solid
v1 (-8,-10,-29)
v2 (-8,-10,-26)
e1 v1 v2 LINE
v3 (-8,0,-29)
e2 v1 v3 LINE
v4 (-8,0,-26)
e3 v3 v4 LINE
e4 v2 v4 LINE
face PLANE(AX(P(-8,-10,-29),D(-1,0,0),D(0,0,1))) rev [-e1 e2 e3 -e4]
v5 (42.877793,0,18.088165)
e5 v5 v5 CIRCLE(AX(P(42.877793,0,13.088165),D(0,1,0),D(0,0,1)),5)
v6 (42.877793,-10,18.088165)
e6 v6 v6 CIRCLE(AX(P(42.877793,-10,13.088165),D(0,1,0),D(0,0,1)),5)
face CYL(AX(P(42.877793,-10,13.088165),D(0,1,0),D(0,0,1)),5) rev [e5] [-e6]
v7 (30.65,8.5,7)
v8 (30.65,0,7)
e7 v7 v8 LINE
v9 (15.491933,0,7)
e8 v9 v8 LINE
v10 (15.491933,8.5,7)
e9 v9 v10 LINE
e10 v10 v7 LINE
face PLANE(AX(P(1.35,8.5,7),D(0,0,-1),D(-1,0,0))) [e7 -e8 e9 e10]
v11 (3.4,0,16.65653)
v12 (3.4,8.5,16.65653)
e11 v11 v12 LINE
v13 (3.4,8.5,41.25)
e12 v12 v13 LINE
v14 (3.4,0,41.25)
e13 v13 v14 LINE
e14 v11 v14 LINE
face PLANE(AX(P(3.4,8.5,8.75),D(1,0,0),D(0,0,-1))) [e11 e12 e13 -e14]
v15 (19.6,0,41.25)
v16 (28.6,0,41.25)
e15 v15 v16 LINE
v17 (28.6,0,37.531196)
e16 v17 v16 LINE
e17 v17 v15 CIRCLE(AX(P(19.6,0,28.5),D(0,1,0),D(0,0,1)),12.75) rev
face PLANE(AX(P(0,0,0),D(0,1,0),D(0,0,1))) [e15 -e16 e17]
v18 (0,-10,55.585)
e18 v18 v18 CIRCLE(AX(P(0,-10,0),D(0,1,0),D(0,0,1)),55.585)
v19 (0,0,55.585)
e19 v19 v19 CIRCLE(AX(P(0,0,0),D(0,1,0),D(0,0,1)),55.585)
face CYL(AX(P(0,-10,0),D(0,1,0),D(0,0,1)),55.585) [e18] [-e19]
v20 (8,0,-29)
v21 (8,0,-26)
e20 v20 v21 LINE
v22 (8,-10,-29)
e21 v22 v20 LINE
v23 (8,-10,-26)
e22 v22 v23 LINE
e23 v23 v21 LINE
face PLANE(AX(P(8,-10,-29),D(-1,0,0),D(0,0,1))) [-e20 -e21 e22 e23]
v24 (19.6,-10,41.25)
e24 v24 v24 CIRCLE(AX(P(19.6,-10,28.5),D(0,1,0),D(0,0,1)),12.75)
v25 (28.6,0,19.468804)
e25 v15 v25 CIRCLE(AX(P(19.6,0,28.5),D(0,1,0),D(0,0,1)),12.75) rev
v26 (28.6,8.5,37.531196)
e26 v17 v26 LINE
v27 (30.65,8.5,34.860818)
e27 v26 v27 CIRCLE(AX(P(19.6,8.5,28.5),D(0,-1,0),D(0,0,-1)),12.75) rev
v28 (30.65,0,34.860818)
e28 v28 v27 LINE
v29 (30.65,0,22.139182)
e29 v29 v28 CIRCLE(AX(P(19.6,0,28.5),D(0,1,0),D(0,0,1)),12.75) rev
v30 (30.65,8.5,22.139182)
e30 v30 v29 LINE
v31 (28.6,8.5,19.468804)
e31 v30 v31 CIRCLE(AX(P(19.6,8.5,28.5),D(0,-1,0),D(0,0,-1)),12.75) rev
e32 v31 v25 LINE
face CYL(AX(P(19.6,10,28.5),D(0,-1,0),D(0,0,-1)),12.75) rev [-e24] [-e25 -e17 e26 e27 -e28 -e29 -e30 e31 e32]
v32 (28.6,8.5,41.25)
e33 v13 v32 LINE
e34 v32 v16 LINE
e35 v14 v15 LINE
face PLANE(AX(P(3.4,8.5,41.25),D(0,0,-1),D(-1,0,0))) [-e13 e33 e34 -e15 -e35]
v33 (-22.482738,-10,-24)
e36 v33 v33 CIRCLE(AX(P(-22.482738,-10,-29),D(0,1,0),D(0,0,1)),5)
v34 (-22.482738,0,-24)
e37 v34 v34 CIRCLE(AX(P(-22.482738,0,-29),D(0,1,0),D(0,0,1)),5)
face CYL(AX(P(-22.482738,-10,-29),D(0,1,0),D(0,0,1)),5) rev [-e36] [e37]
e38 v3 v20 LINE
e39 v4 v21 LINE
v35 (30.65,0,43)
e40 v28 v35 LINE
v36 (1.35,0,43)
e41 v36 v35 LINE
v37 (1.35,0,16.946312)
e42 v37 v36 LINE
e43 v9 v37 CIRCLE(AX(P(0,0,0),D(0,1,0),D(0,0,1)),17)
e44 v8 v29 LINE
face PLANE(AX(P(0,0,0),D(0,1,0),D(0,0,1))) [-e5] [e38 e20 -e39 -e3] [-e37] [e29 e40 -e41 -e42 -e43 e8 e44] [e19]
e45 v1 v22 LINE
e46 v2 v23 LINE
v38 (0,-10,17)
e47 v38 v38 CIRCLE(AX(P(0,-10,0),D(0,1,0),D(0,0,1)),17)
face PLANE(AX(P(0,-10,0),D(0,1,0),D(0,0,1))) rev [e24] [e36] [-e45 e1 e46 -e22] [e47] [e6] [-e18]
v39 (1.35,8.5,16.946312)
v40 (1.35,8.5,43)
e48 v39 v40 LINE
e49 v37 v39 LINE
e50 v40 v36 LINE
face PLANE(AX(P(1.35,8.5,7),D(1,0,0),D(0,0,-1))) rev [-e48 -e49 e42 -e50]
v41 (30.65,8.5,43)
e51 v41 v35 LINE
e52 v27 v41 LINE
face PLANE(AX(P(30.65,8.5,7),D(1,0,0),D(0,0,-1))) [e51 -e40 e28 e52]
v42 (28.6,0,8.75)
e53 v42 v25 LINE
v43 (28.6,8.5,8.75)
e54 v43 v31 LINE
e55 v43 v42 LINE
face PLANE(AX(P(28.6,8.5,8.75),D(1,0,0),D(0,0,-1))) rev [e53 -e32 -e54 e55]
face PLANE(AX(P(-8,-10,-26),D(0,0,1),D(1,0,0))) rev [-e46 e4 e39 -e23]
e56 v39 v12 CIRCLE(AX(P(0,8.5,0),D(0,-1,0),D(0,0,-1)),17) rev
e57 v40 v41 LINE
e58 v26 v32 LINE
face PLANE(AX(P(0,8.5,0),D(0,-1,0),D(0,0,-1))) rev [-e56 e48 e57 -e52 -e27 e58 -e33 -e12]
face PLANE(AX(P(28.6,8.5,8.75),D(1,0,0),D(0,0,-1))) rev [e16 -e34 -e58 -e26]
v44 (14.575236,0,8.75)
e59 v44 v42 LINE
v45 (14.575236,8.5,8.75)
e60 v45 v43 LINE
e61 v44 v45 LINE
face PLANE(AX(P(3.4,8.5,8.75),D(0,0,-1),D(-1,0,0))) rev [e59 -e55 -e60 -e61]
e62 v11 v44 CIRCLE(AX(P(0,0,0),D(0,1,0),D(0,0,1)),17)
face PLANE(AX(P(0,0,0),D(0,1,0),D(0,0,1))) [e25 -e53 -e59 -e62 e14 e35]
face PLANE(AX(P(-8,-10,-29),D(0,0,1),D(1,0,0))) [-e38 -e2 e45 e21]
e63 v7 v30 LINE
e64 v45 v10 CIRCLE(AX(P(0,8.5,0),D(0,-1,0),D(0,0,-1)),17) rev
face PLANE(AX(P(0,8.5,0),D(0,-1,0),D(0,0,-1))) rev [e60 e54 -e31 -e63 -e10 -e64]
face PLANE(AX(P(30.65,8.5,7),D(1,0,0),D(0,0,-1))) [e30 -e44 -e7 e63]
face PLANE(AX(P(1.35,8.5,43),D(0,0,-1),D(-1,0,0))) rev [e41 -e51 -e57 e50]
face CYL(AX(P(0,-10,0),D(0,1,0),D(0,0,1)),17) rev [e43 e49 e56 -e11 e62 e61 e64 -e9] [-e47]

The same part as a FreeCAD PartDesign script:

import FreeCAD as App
import Part
import Sketcher
from FreeCAD import Vector
Q = App.Units.Quantity

doc = App.newDocument("Part")
body = doc.addObject("PartDesign::Body", "Body")

sketch1 = doc.addObject("Sketcher::SketchObject", "Sketch")
body.addObject(sketch1)
sketch1.AttachmentSupport = (doc.XZ_Plane, [""])
sketch1.MapMode = "FlatFace"
sketch1.addGeometry([
    Part.Circle(Vector(0, 0, 0), Vector(0, 0, 1), 55.585),
    Part.Circle(Vector(0, 0, 0), Vector(0, 0, 1), 17),
], False)
sketch1.addConstraint([
    Sketcher.Constraint("Coincident", 0, 3, -1, 1),
    Sketcher.Constraint("Coincident", 1, 3, -1, 1),
    Sketcher.Constraint("Diameter", 1, Q("34 mm")),
    Sketcher.Constraint("Diameter", 0, Q("111.17 mm")),
])
pad1 = doc.addObject("PartDesign::Pad", "Pad")
body.addObject(pad1)
pad1.Profile = sketch1
pad1.Length = 10

sketch2 = doc.addObject("Sketcher::SketchObject", "Sketch001")
body.addObject(sketch2)
sketch2.AttachmentSupport = (doc.XZ_Plane, [""])
sketch2.MapMode = "FlatFace"
sketch2.addGeometry([
    Part.LineSegment(Vector(1.35, 7, 0), Vector(1.35, 43, 0)),
    Part.LineSegment(Vector(1.35, 43, 0), Vector(30.65, 43, 0)),
    Part.LineSegment(Vector(30.65, 43, 0), Vector(30.65, 7, 0)),
    Part.LineSegment(Vector(30.65, 7, 0), Vector(1.35, 7, 0)),
    Part.LineSegment(Vector(28.6, 41.25, 0), Vector(3.4, 41.25, 0)),
    Part.LineSegment(Vector(3.4, 41.25, 0), Vector(3.4, 8.75, 0)),
    Part.LineSegment(Vector(3.4, 8.75, 0), Vector(28.6, 8.75, 0)),
    Part.LineSegment(Vector(28.6, 8.75, 0), Vector(28.6, 41.25, 0)),
], False)
sketch2.addConstraint([
    Sketcher.Constraint("Coincident", 0, 2, 1, 1),
    Sketcher.Constraint("Coincident", 1, 2, 2, 1),
    Sketcher.Constraint("Coincident", 2, 2, 3, 1),
    Sketcher.Constraint("Coincident", 3, 2, 0, 1),
    Sketcher.Constraint("Coincident", 4, 2, 5, 1),
    Sketcher.Constraint("Coincident", 5, 2, 6, 1),
    Sketcher.Constraint("Coincident", 6, 2, 7, 1),
    Sketcher.Constraint("Coincident", 7, 2, 4, 1),
    Sketcher.Constraint("Vertical", 0),
    Sketcher.Constraint("Horizontal", 1),
    Sketcher.Constraint("Vertical", 2),
    Sketcher.Constraint("Horizontal", 3),
    Sketcher.Constraint("Horizontal", 4),
    Sketcher.Constraint("Vertical", 5),
    Sketcher.Constraint("Horizontal", 6),
    Sketcher.Constraint("Vertical", 7),
    Sketcher.Constraint("DistanceY", 0, 1, 0, 2, Q("36 mm")),
    Sketcher.Constraint("DistanceX", 1, 1, 1, 2, Q("29.3 mm")),
    Sketcher.Constraint("DistanceX", 4, 2, 4, 1, Q("25.2 mm")),
    Sketcher.Constraint("DistanceY", 5, 2, 5, 1, Q("32.5 mm")),
    Sketcher.Constraint("DistanceY", -1, 1, 0, 2, Q("43 mm")),
    Sketcher.Constraint("DistanceX", -1, 1, 4, 2, Q("3.4 mm")),
    Sketcher.Constraint("DistanceX", -1, 1, 0, 2, Q("1.35 mm")),
    Sketcher.Constraint("DistanceY", -1, 1, 4, 2, Q("41.25 mm")),
])
pad2 = doc.addObject("PartDesign::Pad", "Pad001")
body.addObject(pad2)
pad2.Profile = sketch2
pad2.Length = 8.5
pad2.Reversed = True

sketch3 = doc.addObject("Sketcher::SketchObject", "Sketch002")
body.addObject(sketch3)
sketch3.AttachmentSupport = (doc.XZ_Plane, [""])
sketch3.MapMode = "FlatFace"
sketch3.addGeometry(Part.Circle(Vector(19.6, 28.5, 0), Vector(0, 0, 1), 12.75), False)
sketch3.addConstraint([
    Sketcher.Constraint("Diameter", 0, Q("25.5 mm")),
    Sketcher.Constraint("DistanceX", -1, 1, 0, 3, Q("19.6 mm")),
    Sketcher.Constraint("DistanceY", -1, 1, 0, 3, Q("28.5 mm")),
])
pocket1 = doc.addObject("PartDesign::Pocket", "Pocket")
body.addObject(pocket1)
pocket1.Profile = sketch3
pocket1.Type = "ThroughAll"
pocket1.Midplane = True

sketch4 = doc.addObject("Sketcher::SketchObject", "Sketch003")
body.addObject(sketch4)
sketch4.AttachmentSupport = (doc.XZ_Plane, [""])
sketch4.MapMode = "FlatFace"
sketch4.AttachmentOffset = App.Placement(Vector(0, 0, -10), App.Rotation())
sketch4.addGeometry(Part.Circle(Vector(0, 0, 0), Vector(0, 0, 1), 17), False)
sketch4.addConstraint([
    Sketcher.Constraint("Coincident", 0, 3, -1, 1),
    Sketcher.Constraint("Diameter", 0, Q("34 mm")),
])
pocket2 = doc.addObject("PartDesign::Pocket", "Pocket001")
body.addObject(pocket2)
pocket2.Profile = sketch4
pocket2.Length = 10
pocket2.Reversed = True

sketch5 = doc.addObject("Sketcher::SketchObject", "Sketch004")
body.addObject(sketch5)
sketch5.AttachmentSupport = (doc.XZ_Plane, [""])
sketch5.MapMode = "FlatFace"
sketch5.addGeometry(Part.Circle(Vector(42.877793, 13.088165, 0), Vector(0, 0, 1), 5), False)
sketch5.addConstraint([
    Sketcher.Constraint("Diameter", 0, Q("10 mm")),
    Sketcher.Constraint("DistanceX", -1, 1, 0, 3, Q("42.877793 mm")),
    Sketcher.Constraint("DistanceY", -1, 1, 0, 3, Q("13.088165 mm")),
])
pocket3 = doc.addObject("PartDesign::Pocket", "Pocket002")
body.addObject(pocket3)
pocket3.Profile = sketch5
pocket3.Length = 10
pocket3.Reversed = True

sketch6 = doc.addObject("Sketcher::SketchObject", "Sketch005")
body.addObject(sketch6)
sketch6.AttachmentSupport = (doc.XZ_Plane, [""])
sketch6.MapMode = "FlatFace"
sketch6.addGeometry([
    Part.Circle(Vector(-22.482738, -29, 0), Vector(0, 0, 1), 5),
    Part.LineSegment(Vector(-8, -29, 0), Vector(-8, -26, 0)),
    Part.LineSegment(Vector(-8, -26, 0), Vector(8, -26, 0)),
    Part.LineSegment(Vector(8, -26, 0), Vector(8, -29, 0)),
    Part.LineSegment(Vector(8, -29, 0), Vector(-8, -29, 0)),
], False)
sketch6.addConstraint([
    Sketcher.Constraint("Coincident", 1, 2, 2, 1),
    Sketcher.Constraint("Coincident", 2, 2, 3, 1),
    Sketcher.Constraint("Coincident", 3, 2, 4, 1),
    Sketcher.Constraint("Coincident", 4, 2, 1, 1),
    Sketcher.Constraint("Vertical", 1),
    Sketcher.Constraint("Horizontal", 2),
    Sketcher.Constraint("Vertical", 3),
    Sketcher.Constraint("Horizontal", 4),
    Sketcher.Constraint("Horizontal", 0, 3, 3, 2),
    Sketcher.Constraint("Diameter", 0, Q("10 mm")),
    Sketcher.Constraint("DistanceX", 2, 1, 2, 2, Q("16 mm")),
    Sketcher.Constraint("DistanceY", 1, 1, 1, 2, Q("3 mm")),
    Sketcher.Constraint("DistanceY", 0, 3, -1, 1, Q("29 mm")),
    Sketcher.Constraint("DistanceX", 1, 2, -1, 1, Q("8 mm")),
    Sketcher.Constraint("DistanceX", 0, 3, -1, 1, Q("22.482738 mm")),
])
pocket4 = doc.addObject("PartDesign::Pocket", "Pocket003")
body.addObject(pocket4)
pocket4.Profile = sketch6
pocket4.Length = 10
pocket4.Reversed = True

doc.recompute()
